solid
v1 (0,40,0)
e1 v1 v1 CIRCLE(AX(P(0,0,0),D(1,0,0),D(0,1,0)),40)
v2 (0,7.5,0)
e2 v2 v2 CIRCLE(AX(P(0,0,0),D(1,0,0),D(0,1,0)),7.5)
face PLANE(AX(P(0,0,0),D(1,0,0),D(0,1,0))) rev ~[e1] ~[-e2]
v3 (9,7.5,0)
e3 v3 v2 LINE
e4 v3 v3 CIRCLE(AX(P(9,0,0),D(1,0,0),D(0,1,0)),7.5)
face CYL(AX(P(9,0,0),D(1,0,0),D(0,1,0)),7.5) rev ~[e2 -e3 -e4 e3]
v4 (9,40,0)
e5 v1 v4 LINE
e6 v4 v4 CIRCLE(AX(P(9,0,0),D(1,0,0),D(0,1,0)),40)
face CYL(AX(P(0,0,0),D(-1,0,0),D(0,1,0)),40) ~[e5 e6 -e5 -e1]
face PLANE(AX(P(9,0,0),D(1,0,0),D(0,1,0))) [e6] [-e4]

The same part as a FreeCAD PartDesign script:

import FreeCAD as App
import Part
import Sketcher
Q = App.Units.Quantity

doc = App.newDocument("Part")
params = doc.addObject("Spreadsheet::Sheet", "Params")
for row, (alias, value) in enumerate([
    ("sketch1_diameter", "80 mm"),
    ("pad1_length", "9 mm"),
    ("sketch2_diameter", "15 mm"),
], start=1):
    params.set(f"A{row}", alias)
    params.set(f"B{row}", "=" + value)
    params.setAlias(f"B{row}", alias)

body = doc.addObject("PartDesign::Body", "Body")

sketch1 = body.newObject("Sketcher::SketchObject", "Sketch")
sketch1.AttachmentSupport = (doc.getObject("YZ_Plane"), [""])
sketch1.MapMode = "FlatFace"
sketch1.addGeometry(Part.Circle(App.Vector(0, 0, 0), App.Vector(0, 0, 1), 40), False)
sketch1.addConstraint([
    Sketcher.Constraint("Coincident", 0, 3, -1, 1),
    Sketcher.Constraint("Diameter", 0, Q("80 mm")),
])
sketch1.setExpression("Constraints[1]", "Params.sketch1_diameter")
pad1 = body.newObject("PartDesign::Pad", "Pad")
pad1.Profile = sketch1
pad1.setExpression("Length", "Params.pad1_length")

sketch2 = body.newObject("Sketcher::SketchObject", "Sketch001")
sketch2.AttachmentSupport = (doc.getObject("YZ_Plane"), [""])
sketch2.MapMode = "FlatFace"
sketch2.AttachmentOffset = App.Placement(App.Vector(0, 0, 9), App.Rotation())
sketch2.addGeometry(Part.Circle(App.Vector(0, 0, 0), App.Vector(0, 0, 1), 7.5), False)
sketch2.addConstraint([
    Sketcher.Constraint("Coincident", 0, 3, -1, 1),
    Sketcher.Constraint("Diameter", 0, Q("15 mm")),
])
sketch2.setExpression("Constraints[1]", "Params.sketch2_diameter")
pocket1 = body.newObject("PartDesign::Pocket", "Pocket")
pocket1.Profile = sketch2
pocket1.Type = "ThroughAll"

doc.recompute()
